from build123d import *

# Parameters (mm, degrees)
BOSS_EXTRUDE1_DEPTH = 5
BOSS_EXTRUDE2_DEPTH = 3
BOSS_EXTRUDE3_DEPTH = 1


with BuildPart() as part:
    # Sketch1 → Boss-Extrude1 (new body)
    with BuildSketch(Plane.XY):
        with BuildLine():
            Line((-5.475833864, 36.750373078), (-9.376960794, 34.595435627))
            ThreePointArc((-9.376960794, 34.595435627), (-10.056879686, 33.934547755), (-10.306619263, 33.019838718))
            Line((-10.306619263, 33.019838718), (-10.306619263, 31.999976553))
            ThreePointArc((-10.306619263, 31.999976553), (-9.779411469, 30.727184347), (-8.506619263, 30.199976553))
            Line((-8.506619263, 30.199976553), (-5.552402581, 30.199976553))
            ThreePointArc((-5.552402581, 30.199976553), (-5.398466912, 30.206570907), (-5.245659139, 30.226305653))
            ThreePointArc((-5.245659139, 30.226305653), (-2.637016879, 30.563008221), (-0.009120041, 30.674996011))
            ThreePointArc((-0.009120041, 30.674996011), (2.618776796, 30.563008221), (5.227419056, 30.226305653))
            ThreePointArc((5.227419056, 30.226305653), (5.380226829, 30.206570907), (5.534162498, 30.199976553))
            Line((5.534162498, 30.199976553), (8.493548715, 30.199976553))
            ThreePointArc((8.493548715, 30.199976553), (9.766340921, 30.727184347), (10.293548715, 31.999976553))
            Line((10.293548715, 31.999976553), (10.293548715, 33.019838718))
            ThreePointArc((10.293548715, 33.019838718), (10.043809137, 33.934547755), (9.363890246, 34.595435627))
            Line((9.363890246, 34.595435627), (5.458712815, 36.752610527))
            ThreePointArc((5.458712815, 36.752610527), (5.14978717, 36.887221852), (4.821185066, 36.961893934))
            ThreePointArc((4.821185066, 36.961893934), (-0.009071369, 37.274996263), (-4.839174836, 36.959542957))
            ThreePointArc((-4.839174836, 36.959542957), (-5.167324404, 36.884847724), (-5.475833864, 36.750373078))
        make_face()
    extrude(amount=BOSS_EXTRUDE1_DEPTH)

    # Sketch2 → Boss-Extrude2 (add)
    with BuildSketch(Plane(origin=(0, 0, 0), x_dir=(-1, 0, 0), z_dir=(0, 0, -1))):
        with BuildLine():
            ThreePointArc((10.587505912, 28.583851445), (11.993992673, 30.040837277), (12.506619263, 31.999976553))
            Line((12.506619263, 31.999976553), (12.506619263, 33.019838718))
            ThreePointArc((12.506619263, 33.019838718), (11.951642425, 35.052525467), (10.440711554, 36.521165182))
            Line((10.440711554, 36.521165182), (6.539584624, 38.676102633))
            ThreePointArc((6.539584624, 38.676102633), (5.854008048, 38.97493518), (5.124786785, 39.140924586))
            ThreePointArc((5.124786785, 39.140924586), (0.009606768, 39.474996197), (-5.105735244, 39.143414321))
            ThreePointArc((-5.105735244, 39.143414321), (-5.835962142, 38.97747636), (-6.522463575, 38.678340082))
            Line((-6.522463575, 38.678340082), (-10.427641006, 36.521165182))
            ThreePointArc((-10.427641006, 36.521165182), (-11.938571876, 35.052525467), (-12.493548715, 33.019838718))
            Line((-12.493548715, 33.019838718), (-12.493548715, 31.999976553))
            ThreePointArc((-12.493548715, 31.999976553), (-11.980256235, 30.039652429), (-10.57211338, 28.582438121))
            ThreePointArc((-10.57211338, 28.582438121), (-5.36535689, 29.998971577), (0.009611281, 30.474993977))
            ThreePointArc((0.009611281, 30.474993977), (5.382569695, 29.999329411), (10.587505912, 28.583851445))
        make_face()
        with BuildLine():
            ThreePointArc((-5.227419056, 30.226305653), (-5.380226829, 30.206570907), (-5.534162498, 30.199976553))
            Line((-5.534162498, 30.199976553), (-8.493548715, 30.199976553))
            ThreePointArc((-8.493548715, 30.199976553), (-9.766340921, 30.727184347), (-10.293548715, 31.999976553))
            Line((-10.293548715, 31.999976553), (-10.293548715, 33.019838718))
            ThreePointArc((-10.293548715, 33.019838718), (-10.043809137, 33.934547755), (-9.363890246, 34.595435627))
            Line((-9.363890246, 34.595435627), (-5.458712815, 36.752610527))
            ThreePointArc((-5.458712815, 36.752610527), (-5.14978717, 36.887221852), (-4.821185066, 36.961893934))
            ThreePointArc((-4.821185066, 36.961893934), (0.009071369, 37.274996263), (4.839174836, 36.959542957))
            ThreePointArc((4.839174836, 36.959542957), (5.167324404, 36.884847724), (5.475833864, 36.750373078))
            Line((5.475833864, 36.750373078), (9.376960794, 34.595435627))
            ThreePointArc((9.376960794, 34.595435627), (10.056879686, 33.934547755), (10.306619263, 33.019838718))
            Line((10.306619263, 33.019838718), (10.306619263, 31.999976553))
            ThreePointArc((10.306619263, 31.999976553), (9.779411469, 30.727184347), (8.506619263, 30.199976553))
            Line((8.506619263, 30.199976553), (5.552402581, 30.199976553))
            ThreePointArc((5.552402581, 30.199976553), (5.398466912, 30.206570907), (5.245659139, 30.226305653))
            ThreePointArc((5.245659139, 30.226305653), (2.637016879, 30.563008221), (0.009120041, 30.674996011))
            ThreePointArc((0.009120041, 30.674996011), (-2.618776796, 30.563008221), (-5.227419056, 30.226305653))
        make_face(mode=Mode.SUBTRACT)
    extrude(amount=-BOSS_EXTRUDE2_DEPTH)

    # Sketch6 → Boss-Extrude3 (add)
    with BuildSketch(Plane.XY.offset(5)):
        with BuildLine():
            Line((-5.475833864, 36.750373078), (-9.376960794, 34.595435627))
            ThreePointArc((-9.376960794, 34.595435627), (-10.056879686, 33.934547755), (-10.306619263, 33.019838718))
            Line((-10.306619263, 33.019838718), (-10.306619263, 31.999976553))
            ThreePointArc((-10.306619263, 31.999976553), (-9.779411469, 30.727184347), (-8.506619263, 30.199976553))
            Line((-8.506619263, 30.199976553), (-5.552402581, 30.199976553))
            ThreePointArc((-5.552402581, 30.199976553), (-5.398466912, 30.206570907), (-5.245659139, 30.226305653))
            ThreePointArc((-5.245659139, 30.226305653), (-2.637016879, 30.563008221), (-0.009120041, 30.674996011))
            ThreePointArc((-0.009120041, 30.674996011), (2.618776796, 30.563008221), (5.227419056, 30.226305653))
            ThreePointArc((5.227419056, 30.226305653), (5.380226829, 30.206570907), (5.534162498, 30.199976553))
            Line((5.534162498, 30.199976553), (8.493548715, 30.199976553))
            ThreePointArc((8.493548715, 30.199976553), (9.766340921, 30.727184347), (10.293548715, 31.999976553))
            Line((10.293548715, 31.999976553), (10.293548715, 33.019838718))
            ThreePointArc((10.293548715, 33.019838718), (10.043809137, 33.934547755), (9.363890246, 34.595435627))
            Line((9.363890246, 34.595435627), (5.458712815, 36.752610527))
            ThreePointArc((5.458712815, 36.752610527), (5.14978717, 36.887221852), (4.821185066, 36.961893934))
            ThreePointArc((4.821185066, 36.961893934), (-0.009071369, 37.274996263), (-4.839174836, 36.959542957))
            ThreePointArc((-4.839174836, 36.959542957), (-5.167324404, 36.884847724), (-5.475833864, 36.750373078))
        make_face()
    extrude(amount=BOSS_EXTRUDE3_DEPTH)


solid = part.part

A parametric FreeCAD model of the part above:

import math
import FreeCAD as App
import Part
import Sketcher
from FreeCAD import Vector

doc = App.newDocument("Part")
body = doc.addObject("PartDesign::Body", "Body")

# Sketch on XY plane
sketch1 = body.newObject("Sketcher::SketchObject", "Sketch")
sketch1.AttachmentSupport = (doc.getObject("XY_Plane"), [""])
sketch1.MapMode = "FlatFace"
sketch1.addGeometry(Part.LineSegment(Vector(-5.48, 36.75, 0), Vector(-9.38, 34.6, 0)), False)
sketch1.addGeometry(Part.ArcOfCircle(Part.Circle(Vector(-8.51, 33.02, 0), Vector(0, 0, 1), 1.8), math.radians(119), math.radians(180)), False)
sketch1.addGeometry(Part.LineSegment(Vector(-10.31, 33.02, 0), Vector(-10.31, 32, 0)), False)
sketch1.addGeometry(Part.ArcOfCircle(Part.Circle(Vector(-8.51, 32, 0), Vector(0, 0, 1), 1.8), math.radians(180), math.radians(270)), False)
sketch1.addGeometry(Part.LineSegment(Vector(-8.51, 30.2, 0), Vector(-5.55, 30.2, 0)), False)
sketch1.addGeometry(Part.ArcOfCircle(Part.Circle(Vector(-5.55, 32, 0), Vector(0, 0, 1), 1.8), math.radians(-90), math.radians(-80.19)), False)
sketch1.addGeometry(Part.ArcOfCircle(Part.Circle(Vector(-0.02, 0, 0), Vector(0, 0, 1), 30.67), math.radians(89.98), math.radians(99.81)), False)
sketch1.addGeometry(Part.ArcOfCircle(Part.Circle(Vector(0, 0, 0), Vector(0, 0, 1), 30.67), math.radians(80.19), math.radians(90.02)), False)
sketch1.addGeometry(Part.ArcOfCircle(Part.Circle(Vector(5.53, 32, 0), Vector(0, 0, 1), 1.8), math.radians(-99.81), math.radians(-90)), False)
sketch1.addGeometry(Part.LineSegment(Vector(5.53, 30.2, 0), Vector(8.49, 30.2, 0)), False)
sketch1.addGeometry(Part.ArcOfCircle(Part.Circle(Vector(8.49, 32, 0), Vector(0, 0, 1), 1.8), math.radians(-90), math.radians(0)), False)
sketch1.addGeometry(Part.LineSegment(Vector(10.29, 32, 0), Vector(10.29, 33.02, 0)), False)
sketch1.addGeometry(Part.ArcOfCircle(Part.Circle(Vector(8.49, 33.02, 0), Vector(0, 0, 1), 1.8), math.radians(0), math.radians(61)), False)
sketch1.addGeometry(Part.LineSegment(Vector(9.36, 34.6, 0), Vector(5.46, 36.75, 0)), False)
sketch1.addGeometry(Part.ArcOfCircle(Part.Circle(Vector(4.59, 35.18, 0), Vector(0, 0, 1), 1.8), math.radians(61), math.radians(83)), False)
sketch1.addGeometry(Part.ArcOfCircle(Part.Circle(Vector(0, 0, 0), Vector(0, 0, 1), 37.27), math.radians(82.57), math.radians(97.46)), False)
sketch1.addGeometry(Part.ArcOfCircle(Part.Circle(Vector(-4.61, 35.17, 0), Vector(0, 0, 1), 1.8), math.radians(97), math.radians(119)), False)
sketch1.addConstraint(Sketcher.Constraint("Tangent", 0, 2, 1, 1))
sketch1.addConstraint(Sketcher.Constraint("Tangent", 1, 2, 2, 1))
sketch1.addConstraint(Sketcher.Constraint("Tangent", 2, 2, 3, 1))
sketch1.addConstraint(Sketcher.Constraint("Tangent", 3, 2, 4, 1))
sketch1.addConstraint(Sketcher.Constraint("Tangent", 4, 2, 5, 1))
sketch1.addConstraint(Sketcher.Constraint("Tangent", 5, 2, 6, 2))
sketch1.addConstraint(Sketcher.Constraint("Coincident", 6, 1, 7, 2))
sketch1.addConstraint(Sketcher.Constraint("Tangent", 7, 1, 8, 1))
sketch1.addConstraint(Sketcher.Constraint("Tangent", 8, 2, 9, 1))
sketch1.addConstraint(Sketcher.Constraint("Tangent", 9, 2, 10, 1))
sketch1.addConstraint(Sketcher.Constraint("Tangent", 10, 2, 11, 1))
sketch1.addConstraint(Sketcher.Constraint("Tangent", 11, 2, 12, 1))
sketch1.addConstraint(Sketcher.Constraint("Tangent", 12, 2, 13, 1))
sketch1.addConstraint(Sketcher.Constraint("Tangent", 13, 2, 14, 1))
sketch1.addConstraint(Sketcher.Constraint("Tangent", 14, 2, 15, 1))
sketch1.addConstraint(Sketcher.Constraint("Tangent", 15, 2, 16, 1))
sketch1.addConstraint(Sketcher.Constraint("Tangent", 16, 2, 0, 1))
sketch1.addConstraint(Sketcher.Constraint("Vertical", 2))
sketch1.addConstraint(Sketcher.Constraint("Horizontal", 4))
sketch1.addConstraint(Sketcher.Constraint("Horizontal", 9))
sketch1.addConstraint(Sketcher.Constraint("Vertical", 11))
sketch1.addConstraint(Sketcher.Constraint("Coincident", 7, 3, -1, 1))
sketch1.addConstraint(Sketcher.Constraint("Coincident", 15, 3, -1, 1))
sketch1.addConstraint(Sketcher.Constraint("Equal", 1, 3))
sketch1.addConstraint(Sketcher.Constraint("Equal", 3, 5))
sketch1.addConstraint(Sketcher.Constraint("Equal", 6, 7))
sketch1.addConstraint(Sketcher.Constraint("Equal", 5, 8))
sketch1.addConstraint(Sketcher.Constraint("Equal", 8, 10))
sketch1.addConstraint(Sketcher.Constraint("Equal", 10, 12))
sketch1.addConstraint(Sketcher.Constraint("Equal", 12, 14))
sketch1.addConstraint(Sketcher.Constraint("Equal", 14, 16))
sketch1.addConstraint(Sketcher.Constraint("PointOnObject", 6, 3, -1))
sketch1.addConstraint(Sketcher.Constraint("Horizontal", 5, 3, 8, 3))
sketch1.addConstraint(Sketcher.Constraint("Horizontal", 1, 3, 12, 3))
sketch1.addConstraint(Sketcher.Constraint("Horizontal", 0, 2, 12, 2))
sketch1.addConstraint(Sketcher.Constraint("Radius", 1, 1.8))
sketch1.addConstraint(Sketcher.Constraint("Radius", 6, 30.674997))
sketch1.addConstraint(Sketcher.Constraint("Radius", 15, 37.274997))
sketch1.addConstraint(Sketcher.Constraint("DistanceY", 5, 3, 16, 3, 3.1748))
sketch1.addConstraint(Sketcher.Constraint("Distance", 0, 4.456742))
sketch1.addConstraint(Sketcher.Constraint("Distance", 13, 4.461369))
sketch1.addConstraint(Sketcher.Constraint("DistanceX", 4, 1, 4, 2, 2.954217))
sketch1.addConstraint(Sketcher.Constraint("DistanceX", 9, 1, 9, 2, 2.959386))
sketch1.addConstraint(Sketcher.Constraint("DistanceY", 2, 2, 2, 1, 1.019862))
pad1 = body.newObject("PartDesign::Pad", "Pad")
pad1.Profile = sketch1
pad1.Length = 5

# Sketch on XY plane
sketch2 = body.newObject("Sketcher::SketchObject", "Sketch001")
sketch2.AttachmentSupport = (doc.getObject("XY_Plane"), [""])
sketch2.MapMode = "FlatFace"
sketch2.addGeometry(Part.ArcOfCircle(Part.Circle(Vector(-8.51, 32, 0), Vector(0, 0, 1), 4), math.radians(180), math.radians(239)), False)
sketch2.addGeometry(Part.LineSegment(Vector(-12.51, 32, 0), Vector(-12.51, 33.02, 0)), False)
sketch2.addGeometry(Part.ArcOfCircle(Part.Circle(Vector(-8.51, 33.02, 0), Vector(0, 0, 1), 4), math.radians(119), math.radians(180)), False)
sketch2.addGeometry(Part.LineSegment(Vector(-10.44, 36.52, 0), Vector(-6.54, 38.68, 0)), False)
sketch2.addGeometry(Part.ArcOfCircle(Part.Circle(Vector(-4.61, 35.17, 0), Vector(0, 0, 1), 4), math.radians(97), math.radians(119)), False)
sketch2.addGeometry(Part.ArcOfCircle(Part.Circle(Vector(0, 0, 0), Vector(0, 0, 1), 39.47), math.radians(82.57), math.radians(97.46)), False)
sketch2.addGeometry(Part.ArcOfCircle(Part.Circle(Vector(4.59, 35.18, 0), Vector(0, 0, 1), 4), math.radians(61), math.radians(83)), False)
sketch2.addGeometry(Part.LineSegment(Vector(6.52, 38.68, 0), Vector(10.43, 36.52, 0)), False)
sketch2.addGeometry(Part.ArcOfCircle(Part.Circle(Vector(8.49, 33.02, 0), Vector(0, 0, 1), 4), math.radians(0), math.radians(61)), False)
sketch2.addGeometry(Part.LineSegment(Vector(12.49, 33.02, 0), Vector(12.49, 32, 0)), False)
sketch2.addGeometry(Part.ArcOfCircle(Part.Circle(Vector(8.49, 32, 0), Vector(0, 0, 1), 4), math.radians(-59), math.radians(0)), False)
sketch2.addGeometry(Part.ArcOfCircle(Part.Circle(Vector(0, 0, 0), Vector(0, 0, 1), 30.47), math.radians(70), math.radians(90)), False)
sketch2.addGeometry(Part.ArcOfCircle(Part.Circle(Vector(-0.02, 0, 0), Vector(0, 0, 1), 30.48), math.radians(90), math.radians(110)), False)
sketch2.addGeometry(Part.ArcOfCircle(Part.Circle(Vector(0, 0, 0), Vector(0, 0, 1), 30.67), math.radians(80.19), math.radians(90.02)), False)
sketch2.addGeometry(Part.ArcOfCircle(Part.Circle(Vector(5.53, 32, 0), Vector(0, 0, 1), 1.8), math.radians(-99.81), math.radians(-90)), False)
sketch2.addGeometry(Part.LineSegment(Vector(5.53, 30.2, 0), Vector(8.49, 30.2, 0)), False)
sketch2.addGeometry(Part.ArcOfCircle(Part.Circle(Vector(8.49, 32, 0), Vector(0, 0, 1), 1.8), math.radians(-90), math.radians(0)), False)
sketch2.addGeometry(Part.LineSegment(Vector(10.29, 32, 0), Vector(10.29, 33.02, 0)), False)
sketch2.addGeometry(Part.ArcOfCircle(Part.Circle(Vector(8.49, 33.02, 0), Vector(0, 0, 1), 1.8), math.radians(0), math.radians(61)), False)
sketch2.addGeometry(Part.LineSegment(Vector(9.36, 34.6, 0), Vector(5.46, 36.75, 0)), False)
sketch2.addGeometry(Part.ArcOfCircle(Part.Circle(Vector(4.59, 35.18, 0), Vector(0, 0, 1), 1.8), math.radians(61), math.radians(83)), False)
sketch2.addGeometry(Part.ArcOfCircle(Part.Circle(Vector(0, 0, 0), Vector(0, 0, 1), 37.27), math.radians(82.57), math.radians(97.46)), False)
sketch2.addGeometry(Part.ArcOfCircle(Part.Circle(Vector(-4.61, 35.17, 0), Vector(0, 0, 1), 1.8), math.radians(97), math.radians(119)), False)
sketch2.addGeometry(Part.LineSegment(Vector(-5.48, 36.75, 0), Vector(-9.38, 34.6, 0)), False)
sketch2.addGeometry(Part.ArcOfCircle(Part.Circle(Vector(-8.51, 33.02, 0), Vector(0, 0, 1), 1.8), math.radians(119), math.radians(180)), False)
sketch2.addGeometry(Part.LineSegment(Vector(-10.31, 33.02, 0), Vector(-10.31, 32, 0)), False)
sketch2.addGeometry(Part.ArcOfCircle(Part.Circle(Vector(-8.51, 32, 0), Vector(0, 0, 1), 1.8), math.radians(180), math.radians(270)), False)
sketch2.addGeometry(Part.LineSegment(Vector(-8.51, 30.2, 0), Vector(-5.55, 30.2, 0)), False)
sketch2.addGeometry(Part.ArcOfCircle(Part.Circle(Vector(-5.55, 32, 0), Vector(0, 0, 1), 1.8), math.radians(-90), math.radians(-80.19)), False)
sketch2.addGeometry(Part.ArcOfCircle(Part.Circle(Vector(-0.02, 0, 0), Vector(0, 0, 1), 30.67), math.radians(89.98), math.radians(99.81)), False)
sketch2.addConstraint(Sketcher.Constraint("Tangent", 0, 1, 1, 1))
sketch2.addConstraint(Sketcher.Constraint("Tangent", 1, 2, 2, 2))
sketch2.addConstraint(Sketcher.Constraint("Tangent", 2, 1, 3, 1))
sketch2.addConstraint(Sketcher.Constraint("Tangent", 3, 2, 4, 2))
sketch2.addConstraint(Sketcher.Constraint("Tangent", 4, 1, 5, 2))
sketch2.addConstraint(Sketcher.Constraint("Tangent", 5, 1, 6, 2))
sketch2.addConstraint(Sketcher.Constraint("Tangent", 6, 1, 7, 1))
sketch2.addConstraint(Sketcher.Constraint("Tangent", 7, 2, 8, 2))
sketch2.addConstraint(Sketcher.Constraint("Tangent", 8, 1, 9, 1))
sketch2.addConstraint(Sketcher.Constraint("Tangent", 9, 2, 10, 2))
sketch2.addConstraint(Sketcher.Constraint("Coincident", 10, 1, 11, 1))
sketch2.addConstraint(Sketcher.Constraint("Coincident", 11, 2, 12, 1))
sketch2.addConstraint(Sketcher.Constraint("Coincident", 12, 2, 0, 2))
sketch2.addConstraint(Sketcher.Constraint("Tangent", 13, 1, 14, 1))
sketch2.addConstraint(Sketcher.Constraint("Tangent", 14, 2, 15, 1))
sketch2.addConstraint(Sketcher.Constraint("Tangent", 15, 2, 16, 1))
sketch2.addConstraint(Sketcher.Constraint("Tangent", 16, 2, 17, 1))
sketch2.addConstraint(Sketcher.Constraint("Tangent", 17, 2, 18, 1))
sketch2.addConstraint(Sketcher.Constraint("Tangent", 18, 2, 19, 1))
sketch2.addConstraint(Sketcher.Constraint("Tangent", 19, 2, 20, 1))
sketch2.addConstraint(Sketcher.Constraint("Tangent", 20, 2, 21, 1))
sketch2.addConstraint(Sketcher.Constraint("Tangent", 21, 2, 22, 1))
sketch2.addConstraint(Sketcher.Constraint("Tangent", 22, 2, 23, 1))
sketch2.addConstraint(Sketcher.Constraint("Tangent", 23, 2, 24, 1))
sketch2.addConstraint(Sketcher.Constraint("Tangent", 24, 2, 25, 1))
sketch2.addConstraint(Sketcher.Constraint("Tangent", 25, 2, 26, 1))
sketch2.addConstraint(Sketcher.Constraint("Tangent", 26, 2, 27, 1))
sketch2.addConstraint(Sketcher.Constraint("Tangent", 27, 2, 28, 1))
sketch2.addConstraint(Sketcher.Constraint("Tangent", 28, 2, 29, 2))
sketch2.addConstraint(Sketcher.Constraint("Coincident", 29, 1, 13, 2))
sketch2.addConstraint(Sketcher.Constraint("Vertical", 1))
sketch2.addConstraint(Sketcher.Constraint("Vertical", 9))
sketch2.addConstraint(Sketcher.Constraint("Horizontal", 15))
sketch2.addConstraint(Sketcher.Constraint("Vertical", 17))
sketch2.addConstraint(Sketcher.Constraint("Vertical", 25))
sketch2.addConstraint(Sketcher.Constraint("Horizontal", 27))
sketch2.addConstraint(Sketcher.Constraint("Coincident", 5, 3, -1, 1))
sketch2.addConstraint(Sketcher.Constraint("Coincident", 11, 3, -1, 1))
sketch2.addConstraint(Sketcher.Constraint("Coincident", 13, 3, -1, 1))
sketch2.addConstraint(Sketcher.Constraint("Coincident", 21, 3, -1, 1))
sketch2.addConstraint(Sketcher.Constraint("Coincident", 16, 3, 10, 3))
sketch2.addConstraint(Sketcher.Constraint("Coincident", 18, 3, 8, 3))
sketch2.addConstraint(Sketcher.Constraint("Coincident", 20, 3, 6, 3))
sketch2.addConstraint(Sketcher.Constraint("Coincident", 22, 3, 4, 3))
sketch2.addConstraint(Sketcher.Constraint("Coincident", 24, 3, 2, 3))
sketch2.addConstraint(Sketcher.Constraint("Coincident", 26, 3, 0, 3))
sketch2.addConstraint(Sketcher.Constraint("Equal", 0, 2))
sketch2.addConstraint(Sketcher.Constraint("Equal", 2, 4))
sketch2.addConstraint(Sketcher.Constraint("Equal", 4, 6))
sketch2.addConstraint(Sketcher.Constraint("Equal", 6, 8))
sketch2.addConstraint(Sketcher.Constraint("Equal", 8, 10))
sketch2.addConstraint(Sketcher.Constraint("Equal", 14, 16))
sketch2.addConstraint(Sketcher.Constraint("Equal", 18, 20))
sketch2.addConstraint(Sketcher.Constraint("Equal", 22, 24))
sketch2.addConstraint(Sketcher.Constraint("Equal", 26, 28))
sketch2.addConstraint(Sketcher.Constraint("Equal", 13, 29))
sketch2.addConstraint(Sketcher.Constraint("PointOnObject", 29, 3, -1))
sketch2.addConstraint(Sketcher.Constraint("Horizontal", 2, 3, 8, 3))
sketch2.addConstraint(Sketcher.Constraint("Horizontal", 0, 3, 10, 3))
sketch2.addConstraint(Sketcher.Constraint("Horizontal", 2, 1, 7, 2))
sketch2.addConstraint(Sketcher.Constraint("Radius", 0, 4.0))
sketch2.addConstraint(Sketcher.Constraint("Radius", 14, 1.8))
sketch2.addConstraint(Sketcher.Constraint("Radius", 12, 30.475))
sketch2.addConstraint(Sketcher.Constraint("Radius", 5, 39.474997))
sketch2.addConstraint(Sketcher.Constraint("Radius", 11, 30.474996))
sketch2.addConstraint(Sketcher.Constraint("Radius", 13, 30.674997))
sketch2.addConstraint(Sketcher.Constraint("DistanceY", 0, 3, 4, 3, 3.1748))
sketch2.addConstraint(Sketcher.Constraint("DistanceY", 8, 3, 6, 1, 5.658501))
sketch2.addConstraint(Sketcher.Constraint("DistanceY", 10, 1, 8, 1, 4.437401))
sketch2.addConstraint(Sketcher.Constraint("Distance", 3, 4.456742))
sketch2.addConstraint(Sketcher.Constraint("Distance", 7, 4.461369))
sketch2.addConstraint(Sketcher.Constraint("DistanceX", 27, 1, 27, 2, 2.954217))
sketch2.addConstraint(Sketcher.Constraint("DistanceX", 11, 2, -1, 1, 0.009611))
sketch2.addConstraint(Sketcher.Constraint("DistanceY", -1, 1, 12, 2, 28.583851))
pad2 = body.newObject("PartDesign::Pad", "Pad001")
pad2.Profile = sketch2
pad2.Length = 3

# Sketch on XY plane
sketch3 = body.newObject("Sketcher::SketchObject", "Sketch002")
sketch3.AttachmentSupport = (doc.getObject("XY_Plane"), [""])
sketch3.MapMode = "FlatFace"
sketch3.AttachmentOffset = App.Placement(Vector(0, 0, 5), App.Rotation())
sketch3.addGeometry(Part.LineSegment(Vector(-5.48, 36.75, 0), Vector(-9.38, 34.6, 0)), False)
sketch3.addGeometry(Part.ArcOfCircle(Part.Circle(Vector(-8.51, 33.02, 0), Vector(0, 0, 1), 1.8), math.radians(119), math.radians(180)), False)
sketch3.addGeometry(Part.LineSegment(Vector(-10.31, 33.02, 0), Vector(-10.31, 32, 0)), False)
sketch3.addGeometry(Part.ArcOfCircle(Part.Circle(Vector(-8.51, 32, 0), Vector(0, 0, 1), 1.8), math.radians(180), math.radians(270)), False)
sketch3.addGeometry(Part.LineSegment(Vector(-8.51, 30.2, 0), Vector(-5.55, 30.2, 0)), False)
sketch3.addGeometry(Part.ArcOfCircle(Part.Circle(Vector(-5.55, 32, 0), Vector(0, 0, 1), 1.8), math.radians(-90), math.radians(-80.19)), False)
sketch3.addGeometry(Part.ArcOfCircle(Part.Circle(Vector(-0.02, 0, 0), Vector(0, 0, 1), 30.67), math.radians(89.98), math.radians(99.81)), False)
sketch3.addGeometry(Part.ArcOfCircle(Part.Circle(Vector(0, 0, 0), Vector(0, 0, 1), 30.67), math.radians(80.19), math.radians(90.02)), False)
sketch3.addGeometry(Part.ArcOfCircle(Part.Circle(Vector(5.53, 32, 0), Vector(0, 0, 1), 1.8), math.radians(-99.81), math.radians(-90)), False)
sketch3.addGeometry(Part.LineSegment(Vector(5.53, 30.2, 0), Vector(8.49, 30.2, 0)), False)
sketch3.addGeometry(Part.ArcOfCircle(Part.Circle(Vector(8.49, 32, 0), Vector(0, 0, 1), 1.8), math.radians(-90), math.radians(0)), False)
sketch3.addGeometry(Part.LineSegment(Vector(10.29, 32, 0), Vector(10.29, 33.02, 0)), False)
sketch3.addGeometry(Part.ArcOfCircle(Part.Circle(Vector(8.49, 33.02, 0), Vector(0, 0, 1), 1.8), math.radians(0), math.radians(61)), False)
sketch3.addGeometry(Part.LineSegment(Vector(9.36, 34.6, 0), Vector(5.46, 36.75, 0)), False)
sketch3.addGeometry(Part.ArcOfCircle(Part.Circle(Vector(4.59, 35.18, 0), Vector(0, 0, 1), 1.8), math.radians(61), math.radians(83)), False)
sketch3.addGeometry(Part.ArcOfCircle(Part.Circle(Vector(0, 0, 0), Vector(0, 0, 1), 37.27), math.radians(82.57), math.radians(97.46)), False)
sketch3.addGeometry(Part.ArcOfCircle(Part.Circle(Vector(-4.61, 35.17, 0), Vector(0, 0, 1), 1.8), math.radians(97), math.radians(119)), False)
sketch3.addConstraint(Sketcher.Constraint("Tangent", 0, 2, 1, 1))
sketch3.addConstraint(Sketcher.Constraint("Tangent", 1, 2, 2, 1))
sketch3.addConstraint(Sketcher.Constraint("Tangent", 2, 2, 3, 1))
sketch3.addConstraint(Sketcher.Constraint("Tangent", 3, 2, 4, 1))
sketch3.addConstraint(Sketcher.Constraint("Tangent", 4, 2, 5, 1))
sketch3.addConstraint(Sketcher.Constraint("Tangent", 5, 2, 6, 2))
sketch3.addConstraint(Sketcher.Constraint("Coincident", 6, 1, 7, 2))
sketch3.addConstraint(Sketcher.Constraint("Tangent", 7, 1, 8, 1))
sketch3.addConstraint(Sketcher.Constraint("Tangent", 8, 2, 9, 1))
sketch3.addConstraint(Sketcher.Constraint("Tangent", 9, 2, 10, 1))
sketch3.addConstraint(Sketcher.Constraint("Tangent", 10, 2, 11, 1))
sketch3.addConstraint(Sketcher.Constraint("Tangent", 11, 2, 12, 1))
sketch3.addConstraint(Sketcher.Constraint("Tangent", 12, 2, 13, 1))
sketch3.addConstraint(Sketcher.Constraint("Tangent", 13, 2, 14, 1))
sketch3.addConstraint(Sketcher.Constraint("Tangent", 14, 2, 15, 1))
sketch3.addConstraint(Sketcher.Constraint("Tangent", 15, 2, 16, 1))
sketch3.addConstraint(Sketcher.Constraint("Tangent", 16, 2, 0, 1))
sketch3.addConstraint(Sketcher.Constraint("Vertical", 2))
sketch3.addConstraint(Sketcher.Constraint("Horizontal", 4))
sketch3.addConstraint(Sketcher.Constraint("Horizontal", 9))
sketch3.addConstraint(Sketcher.Constraint("Vertical", 11))
sketch3.addConstraint(Sketcher.Constraint("Coincident", 7, 3, -1, 1))
sketch3.addConstraint(Sketcher.Constraint("Coincident", 15, 3, -1, 1))
sketch3.addConstraint(Sketcher.Constraint("Equal", 1, 3))
sketch3.addConstraint(Sketcher.Constraint("Equal", 3, 5))
sketch3.addConstraint(Sketcher.Constraint("Equal", 6, 7))
sketch3.addConstraint(Sketcher.Constraint("Equal", 5, 8))
sketch3.addConstraint(Sketcher.Constraint("Equal", 8, 10))
sketch3.addConstraint(Sketcher.Constraint("Equal", 10, 12))
sketch3.addConstraint(Sketcher.Constraint("Equal", 12, 14))
sketch3.addConstraint(Sketcher.Constraint("Equal", 14, 16))
sketch3.addConstraint(Sketcher.Constraint("PointOnObject", 6, 3, -1))
sketch3.addConstraint(Sketcher.Constraint("Horizontal", 5, 3, 8, 3))
sketch3.addConstraint(Sketcher.Constraint("Horizontal", 1, 3, 12, 3))
sketch3.addConstraint(Sketcher.Constraint("Horizontal", 0, 2, 12, 2))
sketch3.addConstraint(Sketcher.Constraint("Radius", 1, 1.8))
sketch3.addConstraint(Sketcher.Constraint("Radius", 6, 30.674997))
sketch3.addConstraint(Sketcher.Constraint("Radius", 15, 37.274997))
sketch3.addConstraint(Sketcher.Constraint("DistanceY", 5, 3, 16, 3, 3.1748))
sketch3.addConstraint(Sketcher.Constraint("Distance", 0, 4.456742))
sketch3.addConstraint(Sketcher.Constraint("Distance", 13, 4.461369))
sketch3.addConstraint(Sketcher.Constraint("DistanceX", 4, 1, 4, 2, 2.954217))
sketch3.addConstraint(Sketcher.Constraint("DistanceX", 9, 1, 9, 2, 2.959386))
sketch3.addConstraint(Sketcher.Constraint("DistanceY", 2, 2, 2, 1, 1.019862))
pad3 = body.newObject("PartDesign::Pad", "Pad002")
pad3.Profile = sketch3
pad3.Length = 1

doc.recompute()
